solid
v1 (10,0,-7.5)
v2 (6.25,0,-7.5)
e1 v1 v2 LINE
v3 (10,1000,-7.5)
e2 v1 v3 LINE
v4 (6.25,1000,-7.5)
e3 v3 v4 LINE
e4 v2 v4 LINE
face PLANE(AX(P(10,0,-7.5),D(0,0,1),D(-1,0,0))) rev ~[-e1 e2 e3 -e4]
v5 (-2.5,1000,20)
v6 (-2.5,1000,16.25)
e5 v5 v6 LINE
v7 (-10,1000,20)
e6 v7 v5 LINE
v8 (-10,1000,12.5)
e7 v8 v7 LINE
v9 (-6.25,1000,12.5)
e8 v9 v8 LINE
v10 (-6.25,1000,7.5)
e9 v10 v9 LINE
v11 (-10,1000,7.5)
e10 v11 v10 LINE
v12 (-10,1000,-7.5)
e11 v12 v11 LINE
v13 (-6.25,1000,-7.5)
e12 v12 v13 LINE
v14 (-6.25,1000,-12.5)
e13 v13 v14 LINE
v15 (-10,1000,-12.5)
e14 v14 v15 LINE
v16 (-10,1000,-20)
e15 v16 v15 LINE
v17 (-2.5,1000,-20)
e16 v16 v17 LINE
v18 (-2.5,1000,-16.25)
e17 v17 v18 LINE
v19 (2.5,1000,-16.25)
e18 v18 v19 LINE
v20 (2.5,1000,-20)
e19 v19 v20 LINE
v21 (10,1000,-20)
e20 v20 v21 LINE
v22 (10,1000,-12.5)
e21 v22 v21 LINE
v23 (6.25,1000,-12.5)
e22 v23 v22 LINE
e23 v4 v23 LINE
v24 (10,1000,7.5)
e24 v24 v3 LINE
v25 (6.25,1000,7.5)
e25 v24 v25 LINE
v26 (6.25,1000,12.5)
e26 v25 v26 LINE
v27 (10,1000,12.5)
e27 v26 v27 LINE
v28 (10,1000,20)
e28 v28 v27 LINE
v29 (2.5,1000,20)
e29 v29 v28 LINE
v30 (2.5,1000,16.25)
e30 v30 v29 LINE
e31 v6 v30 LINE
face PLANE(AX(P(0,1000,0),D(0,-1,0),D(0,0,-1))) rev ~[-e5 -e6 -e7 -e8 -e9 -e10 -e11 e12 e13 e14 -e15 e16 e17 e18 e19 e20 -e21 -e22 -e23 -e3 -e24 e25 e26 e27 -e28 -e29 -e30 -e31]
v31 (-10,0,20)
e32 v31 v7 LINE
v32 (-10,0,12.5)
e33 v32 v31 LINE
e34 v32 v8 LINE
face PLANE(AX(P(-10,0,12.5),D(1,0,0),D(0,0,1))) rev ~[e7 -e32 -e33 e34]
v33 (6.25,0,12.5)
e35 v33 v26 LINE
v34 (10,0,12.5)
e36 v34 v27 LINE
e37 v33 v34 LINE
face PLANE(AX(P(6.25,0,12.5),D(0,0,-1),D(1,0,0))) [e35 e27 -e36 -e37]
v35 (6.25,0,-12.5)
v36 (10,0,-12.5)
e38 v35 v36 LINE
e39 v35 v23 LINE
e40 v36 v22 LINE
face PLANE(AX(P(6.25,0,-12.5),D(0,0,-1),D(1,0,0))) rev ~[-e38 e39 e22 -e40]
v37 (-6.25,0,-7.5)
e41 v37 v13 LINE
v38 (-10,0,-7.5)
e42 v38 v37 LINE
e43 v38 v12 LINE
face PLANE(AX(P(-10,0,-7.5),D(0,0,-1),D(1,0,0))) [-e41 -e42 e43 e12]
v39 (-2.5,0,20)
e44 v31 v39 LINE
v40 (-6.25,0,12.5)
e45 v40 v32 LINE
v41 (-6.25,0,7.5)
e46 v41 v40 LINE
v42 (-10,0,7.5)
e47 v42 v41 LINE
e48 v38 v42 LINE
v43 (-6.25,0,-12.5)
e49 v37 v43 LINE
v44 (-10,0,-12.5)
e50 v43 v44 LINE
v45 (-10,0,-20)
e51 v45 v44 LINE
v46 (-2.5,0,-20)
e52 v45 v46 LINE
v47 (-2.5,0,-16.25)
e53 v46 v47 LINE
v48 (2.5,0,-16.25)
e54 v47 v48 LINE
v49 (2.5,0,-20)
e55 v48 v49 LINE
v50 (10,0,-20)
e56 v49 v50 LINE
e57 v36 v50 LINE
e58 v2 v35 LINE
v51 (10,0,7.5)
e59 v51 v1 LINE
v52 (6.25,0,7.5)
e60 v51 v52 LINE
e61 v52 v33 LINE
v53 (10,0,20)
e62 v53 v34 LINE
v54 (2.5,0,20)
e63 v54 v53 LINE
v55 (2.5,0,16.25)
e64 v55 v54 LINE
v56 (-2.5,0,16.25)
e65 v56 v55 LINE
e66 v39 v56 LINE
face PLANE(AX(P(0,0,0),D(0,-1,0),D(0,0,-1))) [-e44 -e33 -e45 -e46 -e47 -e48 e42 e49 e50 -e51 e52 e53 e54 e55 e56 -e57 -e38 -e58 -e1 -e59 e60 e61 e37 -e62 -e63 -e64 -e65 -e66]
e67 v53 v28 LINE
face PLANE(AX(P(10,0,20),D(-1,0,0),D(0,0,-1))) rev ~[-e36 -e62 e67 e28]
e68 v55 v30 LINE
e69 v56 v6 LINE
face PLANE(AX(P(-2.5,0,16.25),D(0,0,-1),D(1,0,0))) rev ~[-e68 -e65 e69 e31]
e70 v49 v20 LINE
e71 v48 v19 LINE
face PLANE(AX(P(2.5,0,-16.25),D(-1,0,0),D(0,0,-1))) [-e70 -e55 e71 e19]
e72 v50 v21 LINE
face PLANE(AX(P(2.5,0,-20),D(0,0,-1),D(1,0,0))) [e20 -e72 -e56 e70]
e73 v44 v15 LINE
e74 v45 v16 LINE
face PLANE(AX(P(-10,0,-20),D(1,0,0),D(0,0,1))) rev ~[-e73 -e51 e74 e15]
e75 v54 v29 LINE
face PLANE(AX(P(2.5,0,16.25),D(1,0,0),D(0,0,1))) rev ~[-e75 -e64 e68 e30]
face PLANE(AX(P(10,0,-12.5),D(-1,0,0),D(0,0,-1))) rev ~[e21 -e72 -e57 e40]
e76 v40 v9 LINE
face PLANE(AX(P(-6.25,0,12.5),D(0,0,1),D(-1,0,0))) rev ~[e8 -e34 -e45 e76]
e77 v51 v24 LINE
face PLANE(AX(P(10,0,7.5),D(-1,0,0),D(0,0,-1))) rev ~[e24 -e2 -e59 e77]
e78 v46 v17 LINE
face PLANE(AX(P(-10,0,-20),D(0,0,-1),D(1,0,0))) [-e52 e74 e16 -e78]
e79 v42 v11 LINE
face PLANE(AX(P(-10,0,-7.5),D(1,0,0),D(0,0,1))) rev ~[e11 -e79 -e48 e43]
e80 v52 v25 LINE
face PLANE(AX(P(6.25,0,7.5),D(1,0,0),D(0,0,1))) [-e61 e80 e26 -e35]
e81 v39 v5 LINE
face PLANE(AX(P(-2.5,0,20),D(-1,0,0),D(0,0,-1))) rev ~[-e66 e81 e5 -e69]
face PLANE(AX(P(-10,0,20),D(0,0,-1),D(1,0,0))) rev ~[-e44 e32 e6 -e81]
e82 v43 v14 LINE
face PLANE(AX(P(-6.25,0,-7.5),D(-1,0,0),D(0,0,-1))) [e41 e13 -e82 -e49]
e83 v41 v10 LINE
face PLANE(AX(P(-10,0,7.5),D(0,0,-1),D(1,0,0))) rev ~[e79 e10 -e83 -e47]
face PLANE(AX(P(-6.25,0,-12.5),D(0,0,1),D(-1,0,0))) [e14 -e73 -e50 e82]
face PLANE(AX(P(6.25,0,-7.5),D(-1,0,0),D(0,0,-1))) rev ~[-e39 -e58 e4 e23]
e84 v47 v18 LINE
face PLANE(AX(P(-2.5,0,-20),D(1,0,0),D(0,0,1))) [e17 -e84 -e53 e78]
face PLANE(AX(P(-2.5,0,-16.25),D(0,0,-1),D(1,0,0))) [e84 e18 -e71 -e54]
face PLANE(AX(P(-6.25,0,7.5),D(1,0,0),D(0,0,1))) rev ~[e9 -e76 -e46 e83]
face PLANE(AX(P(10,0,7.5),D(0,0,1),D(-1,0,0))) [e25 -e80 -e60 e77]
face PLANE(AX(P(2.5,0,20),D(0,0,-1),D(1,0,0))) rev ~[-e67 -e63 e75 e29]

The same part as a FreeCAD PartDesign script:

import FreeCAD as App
import Part
import Sketcher

V = App.Vector
Q = App.Units.Quantity


def add_polygon(sketch, points):
    """Adds a closed chain of lines whose ends are joined by coincident constraints."""
    first, n = sketch.GeometryCount, len(points)
    for a, b in zip(points, points[1:] + points[:1]):
        sketch.addGeometry(Part.LineSegment(App.Vector(*a, 0), App.Vector(*b, 0)), False)
    for i in range(n):
        sketch.addConstraint(Sketcher.Constraint("Coincident", first + i, 2, first + (i + 1) % n, 1))

doc = App.newDocument("Part")
body = doc.addObject("PartDesign::Body", "Body")

# Sketch on XZ plane
sketch1 = body.newObject("Sketcher::SketchObject", "Sketch")
sketch1.AttachmentSupport = (doc.getObject("XZ_Plane"), [""])
sketch1.MapMode = "FlatFace"
add_polygon(sketch1, [(-2.5, -20), (-2.5, -16.2), (2.5, -16.2), (2.5, -20), (10, -20), (10, -12.5), (6.2, -12.5), (6.2, -7.5), (10, -7.5), (10, 7.5), (6.2, 7.5), (6.2, 12.5), (10, 12.5), (10, 20), (2.5, 20), (2.5, 16.2), (-2.5, 16.2), (-2.5, 20), (-10, 20), (-10, 12.5), (-6.2, 12.5), (-6.2, 7.5), (-10, 7.5), (-10, -7.5), (-6.2, -7.5), (-6.2, -12.5), (-10, -12.5), (-10, -20)])  # lines 0-27
sketch1.addConstraint(Sketcher.Constraint("Vertical", 0))
sketch1.addConstraint(Sketcher.Constraint("Horizontal", 1))
sketch1.addConstraint(Sketcher.Constraint("Vertical", 2))
sketch1.addConstraint(Sketcher.Constraint("Horizontal", 3))
sketch1.addConstraint(Sketcher.Constraint("Vertical", 4))
sketch1.addConstraint(Sketcher.Constraint("Horizontal", 5))
sketch1.addConstraint(Sketcher.Constraint("Vertical", 6))
sketch1.addConstraint(Sketcher.Constraint("Horizontal", 7))
sketch1.addConstraint(Sketcher.Constraint("Vertical", 8))
sketch1.addConstraint(Sketcher.Constraint("Horizontal", 9))
sketch1.addConstraint(Sketcher.Constraint("Vertical", 10))
sketch1.addConstraint(Sketcher.Constraint("Horizontal", 11))
sketch1.addConstraint(Sketcher.Constraint("Vertical", 12))
sketch1.addConstraint(Sketcher.Constraint("Horizontal", 13))
sketch1.addConstraint(Sketcher.Constraint("Vertical", 14))
sketch1.addConstraint(Sketcher.Constraint("Horizontal", 15))
sketch1.addConstraint(Sketcher.Constraint("Vertical", 16))
sketch1.addConstraint(Sketcher.Constraint("Horizontal", 17))
sketch1.addConstraint(Sketcher.Constraint("Vertical", 18))
sketch1.addConstraint(Sketcher.Constraint("Horizontal", 19))
sketch1.addConstraint(Sketcher.Constraint("Vertical", 20))
sketch1.addConstraint(Sketcher.Constraint("Horizontal", 21))
sketch1.addConstraint(Sketcher.Constraint("Vertical", 22))
sketch1.addConstraint(Sketcher.Constraint("Horizontal", 23))
sketch1.addConstraint(Sketcher.Constraint("Vertical", 24))
sketch1.addConstraint(Sketcher.Constraint("Horizontal", 25))
sketch1.addConstraint(Sketcher.Constraint("Vertical", 26))
sketch1.addConstraint(Sketcher.Constraint("Horizontal", 27))
sketch1.addConstraint(Sketcher.Constraint("Symmetric", 0, 2, 14, 2, -1, 1))
sketch1.addConstraint(Sketcher.Constraint("Symmetric", 2, 2, 16, 2, -1, 1))
sketch1.addConstraint(Sketcher.Constraint("Symmetric", 4, 2, 18, 2, -1, 1))
sketch1.addConstraint(Sketcher.Constraint("Symmetric", 6, 2, 20, 2, -1, 1))
sketch1.addConstraint(Sketcher.Constraint("Symmetric", 8, 2, 22, 2, -1, 1))
sketch1.addConstraint(Sketcher.Constraint("Symmetric", 10, 2, 24, 2, -1, 1))
sketch1.addConstraint(Sketcher.Constraint("Symmetric", 12, 2, 26, 2, -1, 1))
sketch1.addConstraint(Sketcher.Constraint("Symmetric", 13, 2, 16, 2, -2))
sketch1.addConstraint(Sketcher.Constraint("Symmetric", 11, 2, 18, 2, -2))
sketch1.addConstraint(Sketcher.Constraint("Symmetric", 9, 2, 20, 2, -2))
sketch1.addConstraint(Sketcher.Constraint("Vertical", 4, 2, 7, 2))
sketch1.addConstraint(Sketcher.Constraint("Equal", 25, 0))
sketch1.addConstraint(Sketcher.Constraint("Equal", 27, 4))
sketch1.addConstraint(Sketcher.Constraint("Equal", 15, 6))
sketch1.addConstraint(Sketcher.Constraint("DistanceX", 1, 1, 1, 2, Q("5 mm")))
sketch1.addConstraint(Sketcher.Constraint("DistanceY", 8, 1, 8, 2, Q("15 mm")))
sketch1.addConstraint(Sketcher.Constraint("DistanceX", 3, 1, 3, 2, Q("7.5 mm")))
sketch1.addConstraint(Sketcher.Constraint("DistanceX", 5, 2, 5, 1, Q("3.75 mm")))
pad1 = body.newObject("PartDesign::Pad", "Pad")
pad1.Profile = sketch1
pad1.Length = 1000
pad1.Reversed = True

doc.recompute()
